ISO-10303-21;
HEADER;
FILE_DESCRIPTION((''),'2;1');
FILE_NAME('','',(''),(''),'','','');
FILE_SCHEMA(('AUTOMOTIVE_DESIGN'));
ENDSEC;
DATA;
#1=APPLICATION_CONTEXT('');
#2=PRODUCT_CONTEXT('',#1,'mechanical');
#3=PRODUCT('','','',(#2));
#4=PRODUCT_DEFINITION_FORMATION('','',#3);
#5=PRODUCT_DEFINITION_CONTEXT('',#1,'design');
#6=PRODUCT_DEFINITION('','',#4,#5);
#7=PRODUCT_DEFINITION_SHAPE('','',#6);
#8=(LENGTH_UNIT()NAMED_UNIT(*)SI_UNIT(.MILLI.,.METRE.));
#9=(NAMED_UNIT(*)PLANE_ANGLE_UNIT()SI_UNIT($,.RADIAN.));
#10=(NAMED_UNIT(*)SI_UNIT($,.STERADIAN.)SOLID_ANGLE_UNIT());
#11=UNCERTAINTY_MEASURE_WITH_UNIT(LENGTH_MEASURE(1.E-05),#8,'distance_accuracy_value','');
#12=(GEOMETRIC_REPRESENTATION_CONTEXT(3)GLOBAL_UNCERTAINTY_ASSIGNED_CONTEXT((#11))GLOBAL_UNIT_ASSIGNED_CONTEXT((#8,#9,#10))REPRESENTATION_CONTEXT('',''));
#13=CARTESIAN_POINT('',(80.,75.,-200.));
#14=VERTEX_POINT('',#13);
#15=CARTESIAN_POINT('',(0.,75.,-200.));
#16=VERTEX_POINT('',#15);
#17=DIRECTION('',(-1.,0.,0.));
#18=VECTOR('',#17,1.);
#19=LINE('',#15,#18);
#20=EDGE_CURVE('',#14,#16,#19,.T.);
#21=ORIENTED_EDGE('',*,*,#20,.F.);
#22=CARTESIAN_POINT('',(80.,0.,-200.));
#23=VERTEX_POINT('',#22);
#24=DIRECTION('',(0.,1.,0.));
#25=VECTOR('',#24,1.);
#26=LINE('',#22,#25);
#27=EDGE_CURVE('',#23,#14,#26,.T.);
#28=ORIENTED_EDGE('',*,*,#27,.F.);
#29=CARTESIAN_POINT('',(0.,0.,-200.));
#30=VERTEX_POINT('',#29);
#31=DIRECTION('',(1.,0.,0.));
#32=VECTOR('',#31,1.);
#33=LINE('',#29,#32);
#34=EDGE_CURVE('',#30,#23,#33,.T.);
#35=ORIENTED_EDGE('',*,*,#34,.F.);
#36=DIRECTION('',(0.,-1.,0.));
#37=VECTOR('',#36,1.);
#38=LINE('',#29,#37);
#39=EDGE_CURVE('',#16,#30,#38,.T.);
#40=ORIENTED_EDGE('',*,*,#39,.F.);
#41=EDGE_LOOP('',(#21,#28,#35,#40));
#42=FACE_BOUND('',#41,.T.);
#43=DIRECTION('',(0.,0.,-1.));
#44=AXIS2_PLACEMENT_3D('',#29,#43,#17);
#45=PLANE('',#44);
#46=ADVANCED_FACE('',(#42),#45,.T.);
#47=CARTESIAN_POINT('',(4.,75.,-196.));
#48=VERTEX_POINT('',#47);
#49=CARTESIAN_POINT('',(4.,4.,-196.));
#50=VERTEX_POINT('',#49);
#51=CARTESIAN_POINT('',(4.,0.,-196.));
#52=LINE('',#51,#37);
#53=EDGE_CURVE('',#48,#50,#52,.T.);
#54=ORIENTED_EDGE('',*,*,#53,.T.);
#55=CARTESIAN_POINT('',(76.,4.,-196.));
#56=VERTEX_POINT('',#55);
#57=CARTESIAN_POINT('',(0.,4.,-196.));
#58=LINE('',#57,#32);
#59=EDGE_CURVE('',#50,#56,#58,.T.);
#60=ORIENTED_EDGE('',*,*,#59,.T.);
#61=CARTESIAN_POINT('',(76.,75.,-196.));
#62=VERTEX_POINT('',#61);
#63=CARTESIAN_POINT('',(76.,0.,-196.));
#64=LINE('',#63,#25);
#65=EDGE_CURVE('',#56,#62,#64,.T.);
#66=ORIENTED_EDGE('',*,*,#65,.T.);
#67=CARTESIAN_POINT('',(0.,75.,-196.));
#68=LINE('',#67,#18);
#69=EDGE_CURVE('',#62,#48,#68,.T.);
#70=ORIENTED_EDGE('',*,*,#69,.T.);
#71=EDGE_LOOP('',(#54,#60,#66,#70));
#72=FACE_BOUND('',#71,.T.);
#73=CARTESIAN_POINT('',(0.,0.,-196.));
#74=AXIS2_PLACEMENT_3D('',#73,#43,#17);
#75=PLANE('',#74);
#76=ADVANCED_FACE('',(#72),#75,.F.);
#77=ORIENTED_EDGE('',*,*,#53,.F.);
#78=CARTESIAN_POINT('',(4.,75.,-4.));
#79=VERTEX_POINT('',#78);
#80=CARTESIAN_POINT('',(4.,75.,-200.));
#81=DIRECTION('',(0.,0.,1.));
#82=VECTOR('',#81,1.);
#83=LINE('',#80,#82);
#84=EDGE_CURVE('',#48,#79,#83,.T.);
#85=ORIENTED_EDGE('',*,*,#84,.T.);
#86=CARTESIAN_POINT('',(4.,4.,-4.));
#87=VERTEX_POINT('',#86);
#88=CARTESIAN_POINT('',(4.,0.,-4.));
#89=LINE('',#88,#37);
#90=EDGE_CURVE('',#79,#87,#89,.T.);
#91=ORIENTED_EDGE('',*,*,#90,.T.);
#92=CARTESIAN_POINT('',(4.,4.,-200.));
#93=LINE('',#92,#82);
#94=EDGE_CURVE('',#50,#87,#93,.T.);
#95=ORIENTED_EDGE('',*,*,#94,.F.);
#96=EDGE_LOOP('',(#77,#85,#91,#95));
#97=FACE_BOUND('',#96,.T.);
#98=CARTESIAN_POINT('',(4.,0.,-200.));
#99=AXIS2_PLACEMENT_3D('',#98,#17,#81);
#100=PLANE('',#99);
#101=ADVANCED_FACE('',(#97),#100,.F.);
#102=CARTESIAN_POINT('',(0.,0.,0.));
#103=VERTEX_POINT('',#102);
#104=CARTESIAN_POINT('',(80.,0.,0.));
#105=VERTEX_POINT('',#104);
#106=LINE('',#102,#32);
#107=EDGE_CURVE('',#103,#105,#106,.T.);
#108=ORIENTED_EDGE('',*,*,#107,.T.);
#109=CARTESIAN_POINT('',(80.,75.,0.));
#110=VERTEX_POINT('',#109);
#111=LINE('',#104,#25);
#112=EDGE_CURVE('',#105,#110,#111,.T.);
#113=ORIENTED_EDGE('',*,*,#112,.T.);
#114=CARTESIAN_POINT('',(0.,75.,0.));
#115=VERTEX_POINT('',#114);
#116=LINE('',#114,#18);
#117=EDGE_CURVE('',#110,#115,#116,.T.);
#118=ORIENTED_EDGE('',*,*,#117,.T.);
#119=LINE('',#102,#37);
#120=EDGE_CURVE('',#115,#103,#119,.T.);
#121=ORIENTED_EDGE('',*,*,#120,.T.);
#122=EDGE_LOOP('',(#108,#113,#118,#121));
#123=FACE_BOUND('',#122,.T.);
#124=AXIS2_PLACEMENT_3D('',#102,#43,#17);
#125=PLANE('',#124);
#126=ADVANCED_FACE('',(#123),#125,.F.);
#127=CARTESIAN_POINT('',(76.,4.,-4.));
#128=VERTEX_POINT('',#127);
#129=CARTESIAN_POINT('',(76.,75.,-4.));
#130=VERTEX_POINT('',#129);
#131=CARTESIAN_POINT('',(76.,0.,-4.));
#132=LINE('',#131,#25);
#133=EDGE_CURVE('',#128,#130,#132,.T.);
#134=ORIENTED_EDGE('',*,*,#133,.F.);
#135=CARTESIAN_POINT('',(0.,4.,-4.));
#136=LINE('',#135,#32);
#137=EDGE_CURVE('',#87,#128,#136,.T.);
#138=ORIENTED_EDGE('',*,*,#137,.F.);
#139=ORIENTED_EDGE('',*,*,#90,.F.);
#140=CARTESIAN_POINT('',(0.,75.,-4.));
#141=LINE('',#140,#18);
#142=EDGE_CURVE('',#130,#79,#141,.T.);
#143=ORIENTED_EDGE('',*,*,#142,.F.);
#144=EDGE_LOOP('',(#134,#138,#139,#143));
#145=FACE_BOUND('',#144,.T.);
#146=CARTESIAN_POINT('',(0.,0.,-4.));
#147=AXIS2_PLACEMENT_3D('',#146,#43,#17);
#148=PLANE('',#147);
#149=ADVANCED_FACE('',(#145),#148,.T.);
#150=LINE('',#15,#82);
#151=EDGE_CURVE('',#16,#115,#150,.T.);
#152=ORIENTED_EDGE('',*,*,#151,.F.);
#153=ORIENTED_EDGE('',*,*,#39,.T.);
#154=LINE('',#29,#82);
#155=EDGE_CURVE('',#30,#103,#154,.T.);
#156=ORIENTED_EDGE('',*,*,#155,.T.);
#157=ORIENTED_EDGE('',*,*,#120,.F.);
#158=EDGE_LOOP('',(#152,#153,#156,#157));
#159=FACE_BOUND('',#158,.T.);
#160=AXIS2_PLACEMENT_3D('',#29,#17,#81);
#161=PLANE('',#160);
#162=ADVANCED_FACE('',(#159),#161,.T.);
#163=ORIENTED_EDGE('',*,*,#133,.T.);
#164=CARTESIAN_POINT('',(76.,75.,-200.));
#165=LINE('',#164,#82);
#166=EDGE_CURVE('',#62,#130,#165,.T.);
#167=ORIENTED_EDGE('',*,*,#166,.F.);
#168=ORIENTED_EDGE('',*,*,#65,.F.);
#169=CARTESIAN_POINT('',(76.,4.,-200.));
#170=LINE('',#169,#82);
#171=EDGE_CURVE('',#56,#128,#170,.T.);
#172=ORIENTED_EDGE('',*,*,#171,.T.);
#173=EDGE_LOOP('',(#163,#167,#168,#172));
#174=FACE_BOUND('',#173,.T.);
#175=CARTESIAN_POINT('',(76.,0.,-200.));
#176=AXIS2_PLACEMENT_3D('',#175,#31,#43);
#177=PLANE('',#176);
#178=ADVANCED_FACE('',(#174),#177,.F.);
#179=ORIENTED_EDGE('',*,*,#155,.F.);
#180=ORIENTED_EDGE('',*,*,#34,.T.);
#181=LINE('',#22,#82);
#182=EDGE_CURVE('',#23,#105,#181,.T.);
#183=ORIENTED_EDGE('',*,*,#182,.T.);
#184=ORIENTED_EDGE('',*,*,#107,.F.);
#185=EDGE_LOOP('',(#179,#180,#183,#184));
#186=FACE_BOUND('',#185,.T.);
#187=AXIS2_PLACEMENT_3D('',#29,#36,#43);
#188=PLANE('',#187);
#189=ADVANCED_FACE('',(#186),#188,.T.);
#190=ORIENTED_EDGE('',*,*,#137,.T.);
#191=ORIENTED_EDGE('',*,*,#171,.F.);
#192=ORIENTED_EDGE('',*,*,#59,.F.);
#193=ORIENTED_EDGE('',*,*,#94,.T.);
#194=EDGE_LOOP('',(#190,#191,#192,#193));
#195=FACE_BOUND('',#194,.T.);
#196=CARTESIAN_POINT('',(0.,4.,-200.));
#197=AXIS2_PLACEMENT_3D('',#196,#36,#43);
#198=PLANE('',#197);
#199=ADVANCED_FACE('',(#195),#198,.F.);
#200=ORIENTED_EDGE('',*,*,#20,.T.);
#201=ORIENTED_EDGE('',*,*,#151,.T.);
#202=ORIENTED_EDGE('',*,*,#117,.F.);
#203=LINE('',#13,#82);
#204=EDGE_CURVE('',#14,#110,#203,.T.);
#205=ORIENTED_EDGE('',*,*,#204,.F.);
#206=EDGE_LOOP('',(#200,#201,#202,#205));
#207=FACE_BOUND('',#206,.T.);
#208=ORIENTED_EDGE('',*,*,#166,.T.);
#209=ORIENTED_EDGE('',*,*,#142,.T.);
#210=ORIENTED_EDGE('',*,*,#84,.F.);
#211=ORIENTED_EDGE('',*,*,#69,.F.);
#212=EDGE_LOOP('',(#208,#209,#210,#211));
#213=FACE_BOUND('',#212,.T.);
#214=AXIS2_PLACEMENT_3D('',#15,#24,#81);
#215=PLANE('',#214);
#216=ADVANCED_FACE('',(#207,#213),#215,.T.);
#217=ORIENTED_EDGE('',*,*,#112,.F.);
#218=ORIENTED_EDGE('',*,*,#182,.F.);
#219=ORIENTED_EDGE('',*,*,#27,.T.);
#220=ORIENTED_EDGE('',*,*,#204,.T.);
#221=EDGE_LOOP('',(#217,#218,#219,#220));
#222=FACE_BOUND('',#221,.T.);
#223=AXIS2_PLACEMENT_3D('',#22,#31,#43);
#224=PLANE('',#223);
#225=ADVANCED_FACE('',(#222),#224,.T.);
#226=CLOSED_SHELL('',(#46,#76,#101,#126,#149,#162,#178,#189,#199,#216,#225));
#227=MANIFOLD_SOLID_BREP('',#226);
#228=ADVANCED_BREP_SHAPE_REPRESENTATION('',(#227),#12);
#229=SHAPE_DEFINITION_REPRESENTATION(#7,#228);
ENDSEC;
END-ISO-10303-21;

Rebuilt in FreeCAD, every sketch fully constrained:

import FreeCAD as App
import Part
import Sketcher
from FreeCAD import Vector
Q = App.Units.Quantity


def faces_at(feature, points):
    """Names of the faces that lie closest to the given points."""
    faces = feature.Shape.Faces
    near = lambda p: min(range(len(faces)), key=lambda i: faces[i].distToShape(Part.Vertex(*p))[0])
    return sorted({f"Face{near(p) + 1}" for p in points})

doc = App.newDocument("Part")
body = doc.addObject("PartDesign::Body", "Body")

sketch1 = body.newObject("Sketcher::SketchObject", "Sketch")
sketch1.AttachmentSupport = (doc.getObject("XY_Plane"), [""])
sketch1.MapMode = "FlatFace"
sketch1.addGeometry([
    Part.LineSegment(Vector(0, 75, 0), Vector(0, 0, 0)),
    Part.LineSegment(Vector(0, 0, 0), Vector(80, 0, 0)),
    Part.LineSegment(Vector(80, 0, 0), Vector(80, 75, 0)),
    Part.LineSegment(Vector(80, 75, 0), Vector(0, 75, 0)),
], False)
sketch1.addConstraint([
    Sketcher.Constraint("Coincident", 0, 2, 1, 1),
    Sketcher.Constraint("Coincident", 1, 2, 2, 1),
    Sketcher.Constraint("Coincident", 2, 2, 3, 1),
    Sketcher.Constraint("Coincident", 3, 2, 0, 1),
    Sketcher.Constraint("Vertical", 0),
    Sketcher.Constraint("Horizontal", 1),
    Sketcher.Constraint("Vertical", 2),
    Sketcher.Constraint("Horizontal", 3),
    Sketcher.Constraint("Coincident", 0, 2, -1, 1),
    Sketcher.Constraint("DistanceX", 1, 1, 1, 2, Q("80 mm")),
    Sketcher.Constraint("DistanceY", 0, 2, 0, 1, Q("75 mm")),
])
pad1 = body.newObject("PartDesign::Pad", "Pad")
pad1.Profile = sketch1
pad1.Length = 200
pad1.Reversed = True
doc.recompute()

thickness = body.newObject("PartDesign::Thickness", "Thickness")
thickness.Base = (pad1, faces_at(pad1, [(40, 75, -100)]))
thickness.Value = 4
thickness.Reversed = True
thickness.Join = "Intersection"

doc.recompute()
